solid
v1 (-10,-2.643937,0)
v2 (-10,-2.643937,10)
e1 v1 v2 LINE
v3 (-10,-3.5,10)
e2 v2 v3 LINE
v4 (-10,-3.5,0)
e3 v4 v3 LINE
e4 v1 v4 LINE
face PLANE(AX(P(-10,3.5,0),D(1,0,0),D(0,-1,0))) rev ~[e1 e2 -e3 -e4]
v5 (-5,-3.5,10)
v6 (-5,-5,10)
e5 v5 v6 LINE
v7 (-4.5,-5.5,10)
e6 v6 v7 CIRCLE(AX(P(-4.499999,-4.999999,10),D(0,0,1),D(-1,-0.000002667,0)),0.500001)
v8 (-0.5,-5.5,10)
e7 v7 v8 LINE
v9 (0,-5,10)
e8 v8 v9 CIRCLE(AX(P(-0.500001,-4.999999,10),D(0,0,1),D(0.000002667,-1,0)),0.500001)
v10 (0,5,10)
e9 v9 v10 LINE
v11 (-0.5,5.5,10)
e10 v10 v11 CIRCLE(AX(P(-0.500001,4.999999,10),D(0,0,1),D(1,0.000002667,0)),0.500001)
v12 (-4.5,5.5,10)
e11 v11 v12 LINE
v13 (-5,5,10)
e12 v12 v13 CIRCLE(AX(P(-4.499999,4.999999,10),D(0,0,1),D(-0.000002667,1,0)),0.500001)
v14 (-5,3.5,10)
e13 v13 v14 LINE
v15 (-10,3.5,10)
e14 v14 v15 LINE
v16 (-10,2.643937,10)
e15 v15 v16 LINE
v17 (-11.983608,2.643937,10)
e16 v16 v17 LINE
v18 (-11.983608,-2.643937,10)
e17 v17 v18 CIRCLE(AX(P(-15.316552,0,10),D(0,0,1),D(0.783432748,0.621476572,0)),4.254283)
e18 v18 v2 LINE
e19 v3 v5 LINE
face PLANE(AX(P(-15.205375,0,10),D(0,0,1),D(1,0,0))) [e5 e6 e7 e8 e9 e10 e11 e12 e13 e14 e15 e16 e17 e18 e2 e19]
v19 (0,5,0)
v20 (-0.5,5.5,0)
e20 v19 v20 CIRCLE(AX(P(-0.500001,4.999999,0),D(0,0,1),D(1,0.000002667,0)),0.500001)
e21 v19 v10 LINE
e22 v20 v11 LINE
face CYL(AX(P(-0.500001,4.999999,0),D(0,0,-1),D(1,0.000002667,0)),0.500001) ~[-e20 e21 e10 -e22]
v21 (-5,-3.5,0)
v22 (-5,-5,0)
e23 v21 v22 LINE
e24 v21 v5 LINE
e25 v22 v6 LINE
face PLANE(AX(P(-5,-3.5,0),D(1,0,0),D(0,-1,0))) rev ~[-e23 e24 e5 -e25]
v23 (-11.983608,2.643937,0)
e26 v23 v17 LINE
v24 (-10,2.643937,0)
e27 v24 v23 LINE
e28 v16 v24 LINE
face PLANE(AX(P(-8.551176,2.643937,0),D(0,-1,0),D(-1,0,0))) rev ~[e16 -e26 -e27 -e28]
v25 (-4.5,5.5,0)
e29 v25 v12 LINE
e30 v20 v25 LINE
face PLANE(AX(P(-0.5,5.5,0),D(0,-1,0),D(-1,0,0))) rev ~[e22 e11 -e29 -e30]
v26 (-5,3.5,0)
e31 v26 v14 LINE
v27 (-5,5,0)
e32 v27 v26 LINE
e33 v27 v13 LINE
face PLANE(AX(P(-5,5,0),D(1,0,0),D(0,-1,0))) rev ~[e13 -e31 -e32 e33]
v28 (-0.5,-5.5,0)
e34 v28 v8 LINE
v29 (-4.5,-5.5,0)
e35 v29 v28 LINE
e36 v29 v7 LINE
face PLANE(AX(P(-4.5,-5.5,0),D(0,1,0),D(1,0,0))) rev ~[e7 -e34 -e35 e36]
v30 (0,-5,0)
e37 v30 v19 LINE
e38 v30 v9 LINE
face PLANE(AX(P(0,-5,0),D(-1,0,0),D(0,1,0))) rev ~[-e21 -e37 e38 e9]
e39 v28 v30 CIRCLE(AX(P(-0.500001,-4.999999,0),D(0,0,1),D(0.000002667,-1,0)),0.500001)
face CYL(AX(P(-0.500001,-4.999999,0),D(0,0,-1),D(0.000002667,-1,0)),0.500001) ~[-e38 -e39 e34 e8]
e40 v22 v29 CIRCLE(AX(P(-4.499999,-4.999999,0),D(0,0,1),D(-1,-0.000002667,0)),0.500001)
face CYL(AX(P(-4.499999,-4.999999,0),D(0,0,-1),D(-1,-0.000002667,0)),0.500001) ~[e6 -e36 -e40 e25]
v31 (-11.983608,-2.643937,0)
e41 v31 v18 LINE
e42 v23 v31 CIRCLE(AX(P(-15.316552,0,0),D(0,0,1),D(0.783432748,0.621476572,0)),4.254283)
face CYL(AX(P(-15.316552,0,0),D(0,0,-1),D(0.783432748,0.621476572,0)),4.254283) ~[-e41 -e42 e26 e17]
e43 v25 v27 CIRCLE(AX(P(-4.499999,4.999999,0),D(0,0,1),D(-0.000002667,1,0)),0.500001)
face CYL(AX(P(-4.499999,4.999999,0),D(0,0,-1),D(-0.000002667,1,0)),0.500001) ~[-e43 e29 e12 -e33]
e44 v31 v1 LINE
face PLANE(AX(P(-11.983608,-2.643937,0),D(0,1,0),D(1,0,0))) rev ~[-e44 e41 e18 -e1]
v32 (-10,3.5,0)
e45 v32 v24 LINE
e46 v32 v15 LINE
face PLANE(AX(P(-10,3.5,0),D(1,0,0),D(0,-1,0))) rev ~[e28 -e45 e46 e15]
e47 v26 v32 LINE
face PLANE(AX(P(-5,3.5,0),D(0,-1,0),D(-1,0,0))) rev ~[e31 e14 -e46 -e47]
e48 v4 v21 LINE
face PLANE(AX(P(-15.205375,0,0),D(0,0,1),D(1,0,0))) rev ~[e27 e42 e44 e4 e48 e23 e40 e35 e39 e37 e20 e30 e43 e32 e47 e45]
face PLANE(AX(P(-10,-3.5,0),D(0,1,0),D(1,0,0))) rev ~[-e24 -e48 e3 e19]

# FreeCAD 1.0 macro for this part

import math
import FreeCAD as App
import Part
import Sketcher

V = App.Vector
Q = App.Units.Quantity

doc = App.newDocument("Part")
body = doc.addObject("PartDesign::Body", "Body")

sketch1 = body.newObject("Sketcher::SketchObject", "Sketch")
sketch1.AttachmentSupport = (doc.getObject("XY_Plane"), [""])
sketch1.MapMode = "FlatFace"
sketch1.addGeometry(Part.LineSegment(V(0, -5, 0), V(0, 5, 0)), False)
sketch1.addGeometry(Part.ArcOfCircle(Part.Circle(V(-0.5, 5, 0), V(0, 0, 1), 0.5), math.radians(0), math.radians(90)), False)
sketch1.addGeometry(Part.LineSegment(V(-0.5, 5.5, 0), V(-4.5, 5.5, 0)), False)
sketch1.addGeometry(Part.ArcOfCircle(Part.Circle(V(-4.5, 5, 0), V(0, 0, 1), 0.5), math.radians(90), math.radians(180)), False)
sketch1.addGeometry(Part.LineSegment(V(-5, 5, 0), V(-5, 3.5, 0)), False)
sketch1.addGeometry(Part.LineSegment(V(-5, 3.5, 0), V(-10, 3.5, 0)), False)
sketch1.addGeometry(Part.LineSegment(V(-10, 3.5, 0), V(-10, -3.5, 0)), False)
sketch1.addGeometry(Part.LineSegment(V(-10, -3.5, 0), V(-5, -3.5, 0)), False)
sketch1.addGeometry(Part.LineSegment(V(-5, -3.5, 0), V(-5, -5, 0)), False)
sketch1.addGeometry(Part.ArcOfCircle(Part.Circle(V(-4.5, -5, 0), V(0, 0, 1), 0.5), math.radians(-180), math.radians(-90)), False)
sketch1.addGeometry(Part.LineSegment(V(-4.5, -5.5, 0), V(-0.5, -5.5, 0)), False)
sketch1.addGeometry(Part.ArcOfCircle(Part.Circle(V(-0.5, -5, 0), V(0, 0, 1), 0.5), math.radians(-90), math.radians(0)), False)
sketch1.addConstraint(Sketcher.Constraint("Coincident", 0, 2, 1, 1))
sketch1.addConstraint(Sketcher.Constraint("Coincident", 1, 2, 2, 1))
sketch1.addConstraint(Sketcher.Constraint("Coincident", 2, 2, 3, 1))
sketch1.addConstraint(Sketcher.Constraint("Coincident", 3, 2, 4, 1))
sketch1.addConstraint(Sketcher.Constraint("Coincident", 4, 2, 5, 1))
sketch1.addConstraint(Sketcher.Constraint("Coincident", 5, 2, 6, 1))
sketch1.addConstraint(Sketcher.Constraint("Coincident", 6, 2, 7, 1))
sketch1.addConstraint(Sketcher.Constraint("Coincident", 7, 2, 8, 1))
sketch1.addConstraint(Sketcher.Constraint("Coincident", 8, 2, 9, 1))
sketch1.addConstraint(Sketcher.Constraint("Coincident", 9, 2, 10, 1))
sketch1.addConstraint(Sketcher.Constraint("Coincident", 10, 2, 11, 1))
sketch1.addConstraint(Sketcher.Constraint("Coincident", 11, 2, 0, 1))
sketch1.addConstraint(Sketcher.Constraint("Vertical", 0))
sketch1.addConstraint(Sketcher.Constraint("Horizontal", 2))
sketch1.addConstraint(Sketcher.Constraint("Vertical", 4))
sketch1.addConstraint(Sketcher.Constraint("Horizontal", 5))
sketch1.addConstraint(Sketcher.Constraint("Vertical", 6))
sketch1.addConstraint(Sketcher.Constraint("Horizontal", 7))
sketch1.addConstraint(Sketcher.Constraint("Vertical", 8))
sketch1.addConstraint(Sketcher.Constraint("Horizontal", 10))
sketch1.addConstraint(Sketcher.Constraint("Equal", 1, 3))
sketch1.addConstraint(Sketcher.Constraint("Equal", 3, 9))
sketch1.addConstraint(Sketcher.Constraint("Equal", 9, 11))
sketch1.addConstraint(Sketcher.Constraint("Symmetric", 0, 2, 11, 2, -1, 1))
sketch1.addConstraint(Sketcher.Constraint("Symmetric", 3, 3, 9, 3, -1))
sketch1.addConstraint(Sketcher.Constraint("Horizontal", 3, 3, 0, 2))
sketch1.addConstraint(Sketcher.Constraint("Horizontal", 0, 2, 3, 2))
sketch1.addConstraint(Sketcher.Constraint("Horizontal", 11, 3, 8, 2))
sketch1.addConstraint(Sketcher.Constraint("Vertical", 11, 3, 1, 2))
sketch1.addConstraint(Sketcher.Constraint("Vertical", 9, 3, 2, 2))
sketch1.addConstraint(Sketcher.Constraint("Vertical", 2, 2, 9, 2))
sketch1.addConstraint(Sketcher.Constraint("Vertical", 1, 2, 10, 2))
sketch1.addConstraint(Sketcher.Constraint("Equal", 4, 8))
sketch1.addConstraint(Sketcher.Constraint("Radius", 1, Q("0.500001 mm")))
sketch1.addConstraint(Sketcher.Constraint("DistanceX", 2, 2, 2, 1, Q("4 mm")))
sketch1.addConstraint(Sketcher.Constraint("DistanceX", 5, 2, 5, 1, Q("5 mm")))
sketch1.addConstraint(Sketcher.Constraint("DistanceY", 0, 1, 0, 2, Q("10 mm")))
sketch1.addConstraint(Sketcher.Constraint("DistanceY", 6, 2, 6, 1, Q("7 mm")))
pad1 = body.newObject("PartDesign::Pad", "Pad")
pad1.Profile = sketch1
pad1.Length = 10

sketch2 = body.newObject("Sketcher::SketchObject", "Sketch001")
sketch2.AttachmentSupport = (doc.getObject("XY_Plane"), [""])
sketch2.MapMode = "FlatFace"
sketch2.addGeometry(Part.ArcOfCircle(Part.Circle(V(-15.3, 0, 0), V(0, 0, 1), 4.3), math.radians(38), math.radians(322)), False)
sketch2.addGeometry(Part.LineSegment(V(-12, -2.6, 0), V(-8.6, -2.6, 0)), False)
sketch2.addGeometry(Part.LineSegment(V(-8.6, -2.6, 0), V(-8.6, 2.6, 0)), False)
sketch2.addGeometry(Part.LineSegment(V(-8.6, 2.6, 0), V(-12, 2.6, 0)), False)
sketch2.addConstraint(Sketcher.Constraint("Coincident", 0, 2, 1, 1))
sketch2.addConstraint(Sketcher.Constraint("Coincident", 1, 2, 2, 1))
sketch2.addConstraint(Sketcher.Constraint("Coincident", 2, 2, 3, 1))
sketch2.addConstraint(Sketcher.Constraint("Coincident", 3, 2, 0, 1))
sketch2.addConstraint(Sketcher.Constraint("Horizontal", 1))
sketch2.addConstraint(Sketcher.Constraint("Vertical", 2))
sketch2.addConstraint(Sketcher.Constraint("Horizontal", 3))
sketch2.addConstraint(Sketcher.Constraint("Symmetric", 0, 2, 3, 2, -1))
sketch2.addConstraint(Sketcher.Constraint("Radius", 0, Q("4.254283 mm")))
sketch2.addConstraint(Sketcher.Constraint("DistanceX", 1, 1, 1, 2, Q("3.432432 mm")))
sketch2.addConstraint(Sketcher.Constraint("DistanceY", 2, 1, 2, 2, Q("5.287874 mm")))
sketch2.addConstraint(Sketcher.Constraint("DistanceX", 0, 2, -1, 1, Q("11.983608 mm")))
pad2 = body.newObject("PartDesign::Pad", "Pad001")
pad2.Profile = sketch2
pad2.Length = 10

doc.recompute()
